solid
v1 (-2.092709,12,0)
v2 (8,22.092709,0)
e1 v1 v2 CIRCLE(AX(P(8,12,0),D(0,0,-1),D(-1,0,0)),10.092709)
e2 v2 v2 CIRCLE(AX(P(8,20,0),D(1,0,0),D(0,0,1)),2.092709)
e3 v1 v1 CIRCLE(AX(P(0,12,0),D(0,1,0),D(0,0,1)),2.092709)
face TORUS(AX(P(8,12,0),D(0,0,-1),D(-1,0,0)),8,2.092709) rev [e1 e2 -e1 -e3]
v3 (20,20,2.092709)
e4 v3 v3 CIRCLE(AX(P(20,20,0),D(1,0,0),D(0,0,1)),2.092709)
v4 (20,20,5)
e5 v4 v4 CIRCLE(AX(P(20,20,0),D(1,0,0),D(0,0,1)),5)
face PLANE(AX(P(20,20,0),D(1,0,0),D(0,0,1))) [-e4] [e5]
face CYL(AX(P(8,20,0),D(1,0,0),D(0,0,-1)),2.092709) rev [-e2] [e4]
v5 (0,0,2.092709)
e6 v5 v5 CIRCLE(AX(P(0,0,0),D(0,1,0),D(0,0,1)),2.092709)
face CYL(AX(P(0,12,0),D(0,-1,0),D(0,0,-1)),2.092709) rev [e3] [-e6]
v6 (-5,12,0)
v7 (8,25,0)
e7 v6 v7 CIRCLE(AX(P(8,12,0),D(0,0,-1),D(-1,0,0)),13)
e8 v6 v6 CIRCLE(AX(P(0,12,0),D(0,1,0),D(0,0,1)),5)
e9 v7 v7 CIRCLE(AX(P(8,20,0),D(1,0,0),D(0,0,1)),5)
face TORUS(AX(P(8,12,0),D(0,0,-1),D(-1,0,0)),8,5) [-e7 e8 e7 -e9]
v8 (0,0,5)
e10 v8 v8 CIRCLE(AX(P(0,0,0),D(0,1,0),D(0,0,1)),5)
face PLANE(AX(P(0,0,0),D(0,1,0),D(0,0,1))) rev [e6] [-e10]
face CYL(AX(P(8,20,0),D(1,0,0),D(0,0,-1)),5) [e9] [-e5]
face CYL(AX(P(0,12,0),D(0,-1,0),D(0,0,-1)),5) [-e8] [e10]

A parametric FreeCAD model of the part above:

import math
import FreeCAD as App
import Part
import Sketcher

V = App.Vector

doc = App.newDocument("Part")
body = doc.addObject("PartDesign::Body", "Body")

sketch1 = doc.addObject("Sketcher::SketchObject", "Sketch")
body.addObject(sketch1)
sketch1.AttachmentSupport = (doc.XZ_Plane, [""])
sketch1.MapMode = "FlatFace"
sketch1.addGeometry(Part.Circle(V(0, 0, 0), V(0, 0, 1), 5), False)
sketch1.addGeometry(Part.Circle(V(0, 0, 0), V(0, 0, 1), 2.092709), False)
sketch1.addConstraint(Sketcher.Constraint("Coincident", 0, 3, -1, 1))
sketch1.addConstraint(Sketcher.Constraint("Coincident", 1, 3, -1, 1))
sketch1.addConstraint(Sketcher.Constraint("Diameter", 0, 10.0))
sketch1.addConstraint(Sketcher.Constraint("Diameter", 1, 4.185418))

sketch2 = doc.addObject("Sketcher::SketchObject", "Sketch001")
body.addObject(sketch2)
sketch2.AttachmentSupport = (doc.XY_Plane, [""])
sketch2.MapMode = "FlatFace"
sketch2.addGeometry(Part.LineSegment(V(0, 0, 0), V(0, 12, 0)), False)
sketch2.addGeometry(Part.ArcOfCircle(Part.Circle(V(8, 12, 0), V(0, 0, 1), 8), math.radians(90), math.radians(180)), False)
sketch2.addGeometry(Part.LineSegment(V(8, 20, 0), V(20, 20, 0)), False)
sketch2.addConstraint(Sketcher.Constraint("Tangent", 0, 2, 1, 2))
sketch2.addConstraint(Sketcher.Constraint("Tangent", 1, 1, 2, 1))
sketch2.addConstraint(Sketcher.Constraint("Vertical", 0))
sketch2.addConstraint(Sketcher.Constraint("Horizontal", 2))
sketch2.addConstraint(Sketcher.Constraint("Coincident", 0, 1, -1, 1))
sketch2.addConstraint(Sketcher.Constraint("Equal", 2, 0))
sketch2.addConstraint(Sketcher.Constraint("Radius", 1, 8.0))
sketch2.addConstraint(Sketcher.Constraint("DistanceX", 2, 1, 2, 2, 12.0))
doc.recompute()

additivepipe = doc.addObject("PartDesign::AdditivePipe", "AdditivePipe")
body.addObject(additivepipe)
additivepipe.Profile = sketch1
additivepipe.Spine = (sketch2, ["Edge1", "Edge2", "Edge3"])

doc.recompute()
